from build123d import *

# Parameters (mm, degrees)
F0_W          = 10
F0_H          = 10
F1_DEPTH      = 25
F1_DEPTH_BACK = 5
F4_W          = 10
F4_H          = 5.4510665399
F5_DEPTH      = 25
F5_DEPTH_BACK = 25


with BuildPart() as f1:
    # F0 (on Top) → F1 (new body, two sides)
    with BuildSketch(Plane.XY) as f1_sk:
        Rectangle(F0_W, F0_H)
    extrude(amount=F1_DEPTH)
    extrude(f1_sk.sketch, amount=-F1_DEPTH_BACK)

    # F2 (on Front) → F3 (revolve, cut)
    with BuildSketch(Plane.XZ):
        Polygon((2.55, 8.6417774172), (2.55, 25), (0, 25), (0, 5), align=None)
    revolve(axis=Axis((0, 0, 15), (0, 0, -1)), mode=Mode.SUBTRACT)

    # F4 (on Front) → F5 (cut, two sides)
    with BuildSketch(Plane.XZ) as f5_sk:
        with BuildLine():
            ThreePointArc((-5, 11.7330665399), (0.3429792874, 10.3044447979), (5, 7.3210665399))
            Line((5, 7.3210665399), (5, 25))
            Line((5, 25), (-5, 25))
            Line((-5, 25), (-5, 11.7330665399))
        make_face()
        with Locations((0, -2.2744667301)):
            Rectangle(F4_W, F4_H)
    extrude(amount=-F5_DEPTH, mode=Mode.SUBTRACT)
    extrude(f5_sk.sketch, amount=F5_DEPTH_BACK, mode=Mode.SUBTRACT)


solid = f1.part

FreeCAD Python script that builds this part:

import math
import FreeCAD as App
import Part
import Sketcher

V = App.Vector
Q = App.Units.Quantity


def add_polygon(sketch, points):
    """Adds a closed chain of lines whose ends are joined by coincident constraints."""
    first, n = sketch.GeometryCount, len(points)
    for a, b in zip(points, points[1:] + points[:1]):
        sketch.addGeometry(Part.LineSegment(App.Vector(*a, 0), App.Vector(*b, 0)), False)
    for i in range(n):
        sketch.addConstraint(Sketcher.Constraint("Coincident", first + i, 2, first + (i + 1) % n, 1))

doc = App.newDocument("Part")
body = doc.addObject("PartDesign::Body", "Body")

# Sketch on XY plane
sketch1 = doc.addObject("Sketcher::SketchObject", "Sketch")
body.addObject(sketch1)
sketch1.AttachmentSupport = (doc.XY_Plane, [""])
sketch1.MapMode = "FlatFace"
add_polygon(sketch1, [(-5, 5), (-5, -5), (5, -5), (5, 5)])  # lines 0-3
sketch1.addConstraint([
    Sketcher.Constraint("Vertical", 0),
    Sketcher.Constraint("Horizontal", 1),
    Sketcher.Constraint("Vertical", 2),
    Sketcher.Constraint("Horizontal", 3),
    Sketcher.Constraint("Symmetric", 0, 2, 2, 2, -1, 1),
    Sketcher.Constraint("Equal", 3, 0),
    Sketcher.Constraint("DistanceX", 1, 1, 1, 2, 10.0),
])
pad1 = doc.addObject("PartDesign::Pad", "Pad")
body.addObject(pad1)
pad1.Profile = sketch1
pad1.Type = "TwoLengths"
pad1.Length = 25
pad1.Length2 = 5

# Sketch on XZ plane
sketch2 = doc.addObject("Sketcher::SketchObject", "Sketch001")
body.addObject(sketch2)
sketch2.AttachmentSupport = (doc.XZ_Plane, [""])
sketch2.MapMode = "FlatFace"
add_polygon(sketch2, [(2.55, 8.641777), (2.55, 25), (0, 25), (0, 5)])  # lines 0-3
sketch2.addConstraint([
    Sketcher.Constraint("Vertical", 0),
    Sketcher.Constraint("Horizontal", 1),
    Sketcher.Constraint("Vertical", 2),
    Sketcher.Constraint("PointOnObject", 1, 2, -2),
    Sketcher.Constraint("DistanceY", 2, 2, 2, 1, 20.0),
    Sketcher.Constraint("Angle", 3, Q("55 deg")),
    Sketcher.Constraint("DistanceY", -1, 1, 0, 2, 25.0),
    Sketcher.Constraint("DistanceX", 1, 2, 1, 1, 2.55),
])
groove = doc.addObject("PartDesign::Groove", "Groove")
body.addObject(groove)
groove.Profile = sketch2
groove.ReferenceAxis = (sketch2, ["V_Axis"])
groove.Angle = 360

# Sketch on XZ plane
sketch3 = doc.addObject("Sketcher::SketchObject", "Sketch002")
body.addObject(sketch3)
sketch3.AttachmentSupport = (doc.XZ_Plane, [""])
sketch3.MapMode = "FlatFace"
sketch3.addGeometry(Part.ArcOfCircle(Part.Circle(V(-6.922869, -6.163933, 0), V(0, 0, 1), 18), math.radians(48.518239), math.radians(83.867617)), False)  # 0
sketch3.addGeometry(Part.LineSegment(V(5, 7.321067, 0), V(5, 25, 0)), False)  # 1
sketch3.addGeometry(Part.LineSegment(V(5, 25, 0), V(-5, 25, 0)), False)  # 2
sketch3.addGeometry(Part.LineSegment(V(-5, 25, 0), V(-5, 11.733067, 0)), False)  # 3
add_polygon(sketch3, [(-5, 0.451067), (-5, -5), (5, -5), (5, 0.451067)])  # lines 4-7
sketch3.addConstraint([
    Sketcher.Constraint("Coincident", 0, 1, 1, 1),
    Sketcher.Constraint("Coincident", 1, 2, 2, 1),
    Sketcher.Constraint("Coincident", 2, 2, 3, 1),
    Sketcher.Constraint("Coincident", 3, 2, 0, 2),
    Sketcher.Constraint("Vertical", 1),
    Sketcher.Constraint("Horizontal", 2),
    Sketcher.Constraint("Vertical", 3),
    Sketcher.Constraint("Vertical", 4),
    Sketcher.Constraint("Horizontal", 5),
    Sketcher.Constraint("Vertical", 6),
    Sketcher.Constraint("Horizontal", 7),
    Sketcher.Constraint("Vertical", 3, 2, 4, 2),
    Sketcher.Constraint("Vertical", 1, 2, 5, 2),
    Sketcher.Constraint("Radius", 0, 18.0),
    Sketcher.Constraint("DistanceX", 2, 2, 2, 1, 10.0),
    Sketcher.Constraint("DistanceX", -1, 1, 0, 1, 5.0),
    Sketcher.Constraint("DistanceY", -1, 1, 1, 2, 25.0),
    Sketcher.Constraint("DistanceY", 4, 2, -1, 1, 5.0),
    Sketcher.Constraint("DistanceY", 6, 2, 0, 1, 6.87),
    Sketcher.Constraint("DistanceY", 0, 3, 0, 1, 13.484999),
    Sketcher.Constraint("DistanceY", 1, 1, 1, 2, 17.678933),
])
pocket1 = doc.addObject("PartDesign::Pocket", "Pocket")
body.addObject(pocket1)
pocket1.Profile = sketch3
pocket1.Type = "ThroughAll"
pocket1.Midplane = True

doc.recompute()
